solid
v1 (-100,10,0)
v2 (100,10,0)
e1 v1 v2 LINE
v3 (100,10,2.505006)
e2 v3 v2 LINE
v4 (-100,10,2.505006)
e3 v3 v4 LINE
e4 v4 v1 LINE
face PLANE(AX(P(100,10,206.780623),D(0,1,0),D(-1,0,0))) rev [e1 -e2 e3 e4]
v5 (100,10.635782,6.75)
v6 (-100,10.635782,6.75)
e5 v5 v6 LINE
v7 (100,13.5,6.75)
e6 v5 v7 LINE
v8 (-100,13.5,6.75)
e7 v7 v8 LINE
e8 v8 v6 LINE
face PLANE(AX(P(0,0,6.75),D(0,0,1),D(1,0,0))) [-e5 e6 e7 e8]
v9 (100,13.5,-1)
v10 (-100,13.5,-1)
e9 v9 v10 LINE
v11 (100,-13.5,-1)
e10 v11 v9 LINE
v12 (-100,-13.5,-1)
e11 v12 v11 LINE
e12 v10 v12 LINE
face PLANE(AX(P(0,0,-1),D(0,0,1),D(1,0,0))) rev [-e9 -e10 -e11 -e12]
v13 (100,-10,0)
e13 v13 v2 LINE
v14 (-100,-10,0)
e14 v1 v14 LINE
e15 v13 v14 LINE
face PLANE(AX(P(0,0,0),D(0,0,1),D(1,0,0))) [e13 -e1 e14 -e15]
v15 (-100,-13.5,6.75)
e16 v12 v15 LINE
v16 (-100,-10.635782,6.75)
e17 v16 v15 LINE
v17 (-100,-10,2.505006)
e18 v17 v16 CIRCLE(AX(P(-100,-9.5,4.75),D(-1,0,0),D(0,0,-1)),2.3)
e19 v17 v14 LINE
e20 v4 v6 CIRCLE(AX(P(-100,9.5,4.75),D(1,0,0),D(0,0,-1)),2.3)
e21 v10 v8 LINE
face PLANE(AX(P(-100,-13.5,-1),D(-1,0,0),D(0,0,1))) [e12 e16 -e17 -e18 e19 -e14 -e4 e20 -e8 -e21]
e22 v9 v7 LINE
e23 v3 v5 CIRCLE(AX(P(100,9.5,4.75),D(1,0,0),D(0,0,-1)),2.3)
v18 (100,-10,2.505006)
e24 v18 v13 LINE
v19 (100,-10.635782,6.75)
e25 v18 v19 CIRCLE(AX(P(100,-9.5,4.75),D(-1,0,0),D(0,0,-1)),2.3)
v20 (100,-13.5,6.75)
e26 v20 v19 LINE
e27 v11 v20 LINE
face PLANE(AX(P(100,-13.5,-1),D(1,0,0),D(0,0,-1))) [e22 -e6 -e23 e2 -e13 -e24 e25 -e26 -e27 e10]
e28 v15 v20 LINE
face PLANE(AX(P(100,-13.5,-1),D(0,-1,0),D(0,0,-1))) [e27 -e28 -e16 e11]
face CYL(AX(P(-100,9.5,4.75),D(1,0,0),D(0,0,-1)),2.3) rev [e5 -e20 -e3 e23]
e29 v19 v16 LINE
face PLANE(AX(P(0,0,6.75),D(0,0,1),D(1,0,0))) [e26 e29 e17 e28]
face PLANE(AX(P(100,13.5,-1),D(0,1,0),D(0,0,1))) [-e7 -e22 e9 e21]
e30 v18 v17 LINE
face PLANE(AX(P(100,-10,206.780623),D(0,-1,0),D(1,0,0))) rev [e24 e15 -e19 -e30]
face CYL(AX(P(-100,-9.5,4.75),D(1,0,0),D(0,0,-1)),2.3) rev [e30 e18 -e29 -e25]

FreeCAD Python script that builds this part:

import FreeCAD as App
import Part
import Sketcher
from FreeCAD import Vector


def add_polygon(sketch, points):
    """Adds a closed chain of lines whose ends are joined by coincident constraints."""
    first, n = sketch.GeometryCount, len(points)
    for a, b in zip(points, points[1:] + points[:1]):
        sketch.addGeometry(Part.LineSegment(App.Vector(*a, 0), App.Vector(*b, 0)), False)
    for i in range(n):
        sketch.addConstraint(Sketcher.Constraint("Coincident", first + i, 2, first + (i + 1) % n, 1))

doc = App.newDocument("Part")
body = doc.addObject("PartDesign::Body", "Body")

# Sketch on XY plane
sketch1 = body.newObject("Sketcher::SketchObject", "Sketch")
sketch1.AttachmentSupport = (doc.getObject("XY_Plane"), [""])
sketch1.MapMode = "FlatFace"
add_polygon(sketch1, [(-100, 13.5), (-100, -13.5), (100, -13.5), (100, 13.5)])  # lines 0-3
sketch1.addConstraint(Sketcher.Constraint("Vertical", 0))
sketch1.addConstraint(Sketcher.Constraint("Horizontal", 1))
sketch1.addConstraint(Sketcher.Constraint("Vertical", 2))
sketch1.addConstraint(Sketcher.Constraint("Horizontal", 3))
sketch1.addConstraint(Sketcher.Constraint("Symmetric", 0, 2, 2, 2, -1, 1))
sketch1.addConstraint(Sketcher.Constraint("DistanceX", 1, 1, 1, 2, 200.0))
sketch1.addConstraint(Sketcher.Constraint("DistanceY", 0, 2, 0, 1, 27.0))
pad1 = body.newObject("PartDesign::Pad", "Pad")
pad1.Profile = sketch1
pad1.Length = 1
pad1.Reversed = True

# Sketch on XY plane
sketch2 = body.newObject("Sketcher::SketchObject", "Sketch001")
sketch2.AttachmentSupport = (doc.getObject("XY_Plane"), [""])
sketch2.MapMode = "FlatFace"
add_polygon(sketch2, [(-100, 13.5), (-100, 10), (100, 10), (100, 13.5)])  # lines 0-3
add_polygon(sketch2, [(-100, -10), (-100, -13.5), (100, -13.5), (100, -10)])  # lines 4-7
sketch2.addConstraint(Sketcher.Constraint("Vertical", 0))
sketch2.addConstraint(Sketcher.Constraint("Horizontal", 1))
sketch2.addConstraint(Sketcher.Constraint("Vertical", 2))
sketch2.addConstraint(Sketcher.Constraint("Horizontal", 3))
sketch2.addConstraint(Sketcher.Constraint("Vertical", 4))
sketch2.addConstraint(Sketcher.Constraint("Horizontal", 5))
sketch2.addConstraint(Sketcher.Constraint("Vertical", 6))
sketch2.addConstraint(Sketcher.Constraint("Horizontal", 7))
sketch2.addConstraint(Sketcher.Constraint("Symmetric", 2, 2, 4, 2, -1, 1))
sketch2.addConstraint(Sketcher.Constraint("Symmetric", 0, 2, 6, 2, -1, 1))
sketch2.addConstraint(Sketcher.Constraint("Vertical", 3, 2, 4, 2))
sketch2.addConstraint(Sketcher.Constraint("DistanceX", 1, 1, 1, 2, 200.0))
sketch2.addConstraint(Sketcher.Constraint("DistanceY", 0, 2, 0, 1, 3.5))
sketch2.addConstraint(Sketcher.Constraint("DistanceY", -1, 1, 0, 2, 10.0))
pad2 = body.newObject("PartDesign::Pad", "Pad001")
pad2.Profile = sketch2
pad2.Length = 6.75

# Sketch on YZ plane
sketch3 = body.newObject("Sketcher::SketchObject", "Sketch002")
sketch3.AttachmentSupport = (doc.getObject("YZ_Plane"), [""])
sketch3.MapMode = "FlatFace"
sketch3.addGeometry(Part.Circle(Vector(9.5, 4.75, 0), Vector(0, 0, 1), 2.3), False)
sketch3.addConstraint(Sketcher.Constraint("Diameter", 0, 4.6))
sketch3.addConstraint(Sketcher.Constraint("DistanceX", -1, 1, 0, 3, 9.5))
sketch3.addConstraint(Sketcher.Constraint("DistanceY", -1, 1, 0, 3, 4.75))
pocket1 = body.newObject("PartDesign::Pocket", "Pocket")
pocket1.Profile = sketch3
pocket1.Length = 204.265296
pocket1.Midplane = True
doc.recompute()

mirrored = body.newObject("PartDesign::Mirrored", "Mirrored")
mirrored.Originals = [pocket1]
mirrored.MirrorPlane = (doc.getObject("XZ_Plane"), [""])
body.Tip = mirrored

doc.recompute()
